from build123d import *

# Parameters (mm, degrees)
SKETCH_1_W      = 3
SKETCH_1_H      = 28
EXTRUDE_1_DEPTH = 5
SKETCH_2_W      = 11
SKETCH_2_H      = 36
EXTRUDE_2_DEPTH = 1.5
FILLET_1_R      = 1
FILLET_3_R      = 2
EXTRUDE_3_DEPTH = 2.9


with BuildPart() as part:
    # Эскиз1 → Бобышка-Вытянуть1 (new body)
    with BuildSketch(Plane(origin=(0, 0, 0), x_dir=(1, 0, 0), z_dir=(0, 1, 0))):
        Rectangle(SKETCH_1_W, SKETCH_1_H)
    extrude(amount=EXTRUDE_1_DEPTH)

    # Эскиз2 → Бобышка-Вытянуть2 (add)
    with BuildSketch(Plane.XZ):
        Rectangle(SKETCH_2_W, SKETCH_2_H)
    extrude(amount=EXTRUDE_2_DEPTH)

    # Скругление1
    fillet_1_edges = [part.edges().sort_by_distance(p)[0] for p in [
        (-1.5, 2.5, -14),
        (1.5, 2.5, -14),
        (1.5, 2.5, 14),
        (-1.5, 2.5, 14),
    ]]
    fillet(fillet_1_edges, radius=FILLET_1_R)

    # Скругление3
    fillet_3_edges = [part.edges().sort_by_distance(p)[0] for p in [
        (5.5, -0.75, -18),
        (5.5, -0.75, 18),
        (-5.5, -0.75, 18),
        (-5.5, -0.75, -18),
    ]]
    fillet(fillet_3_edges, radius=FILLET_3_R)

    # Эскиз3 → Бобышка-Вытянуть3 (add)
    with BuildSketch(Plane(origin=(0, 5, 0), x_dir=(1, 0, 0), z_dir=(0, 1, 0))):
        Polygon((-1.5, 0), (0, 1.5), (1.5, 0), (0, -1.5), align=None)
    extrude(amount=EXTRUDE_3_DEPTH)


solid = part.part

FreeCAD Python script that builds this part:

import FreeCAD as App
import Part
import Sketcher

V = App.Vector
Q = App.Units.Quantity


def edges_at(feature, points):
    """Names of the edges that pass closest to the given points."""
    edges = feature.Shape.Edges
    near = lambda p: min(range(len(edges)), key=lambda i: edges[i].distToShape(Part.Vertex(*p))[0])
    return sorted({f"Edge{near(p) + 1}" for p in points})

doc = App.newDocument("Part")
body = doc.addObject("PartDesign::Body", "Body")

# Sketch on XZ plane
sketch1 = body.newObject("Sketcher::SketchObject", "Sketch")
sketch1.AttachmentSupport = (doc.getObject("XZ_Plane"), [""])
sketch1.MapMode = "FlatFace"
sketch1.addGeometry(Part.LineSegment(V(-1.5, -14, 0), V(-1.5, 14, 0)), False)
sketch1.addGeometry(Part.LineSegment(V(-1.5, 14, 0), V(1.5, 14, 0)), False)
sketch1.addGeometry(Part.LineSegment(V(1.5, 14, 0), V(1.5, -14, 0)), False)
sketch1.addGeometry(Part.LineSegment(V(1.5, -14, 0), V(-1.5, -14, 0)), False)
sketch1.addConstraint(Sketcher.Constraint("Coincident", 0, 2, 1, 1))
sketch1.addConstraint(Sketcher.Constraint("Coincident", 1, 2, 2, 1))
sketch1.addConstraint(Sketcher.Constraint("Coincident", 2, 2, 3, 1))
sketch1.addConstraint(Sketcher.Constraint("Coincident", 3, 2, 0, 1))
sketch1.addConstraint(Sketcher.Constraint("Vertical", 0))
sketch1.addConstraint(Sketcher.Constraint("Horizontal", 1))
sketch1.addConstraint(Sketcher.Constraint("Vertical", 2))
sketch1.addConstraint(Sketcher.Constraint("Horizontal", 3))
sketch1.addConstraint(Sketcher.Constraint("Symmetric", 0, 2, 2, 2, -1, 1))
sketch1.addConstraint(Sketcher.Constraint("DistanceX", 1, 1, 1, 2, Q("3 mm")))
sketch1.addConstraint(Sketcher.Constraint("DistanceY", 0, 1, 0, 2, Q("28 mm")))
pad1 = body.newObject("PartDesign::Pad", "Pad")
pad1.Profile = sketch1
pad1.Length = 5
pad1.Reversed = True

# Sketch on XZ plane
sketch2 = body.newObject("Sketcher::SketchObject", "Sketch001")
sketch2.AttachmentSupport = (doc.getObject("XZ_Plane"), [""])
sketch2.MapMode = "FlatFace"
sketch2.addGeometry(Part.LineSegment(V(-6, 18, 0), V(-6, -18, 0)), False)
sketch2.addGeometry(Part.LineSegment(V(-6, -18, 0), V(6, -18, 0)), False)
sketch2.addGeometry(Part.LineSegment(V(6, -18, 0), V(6, 18, 0)), False)
sketch2.addGeometry(Part.LineSegment(V(6, 18, 0), V(-6, 18, 0)), False)
sketch2.addConstraint(Sketcher.Constraint("Coincident", 0, 2, 1, 1))
sketch2.addConstraint(Sketcher.Constraint("Coincident", 1, 2, 2, 1))
sketch2.addConstraint(Sketcher.Constraint("Coincident", 2, 2, 3, 1))
sketch2.addConstraint(Sketcher.Constraint("Coincident", 3, 2, 0, 1))
sketch2.addConstraint(Sketcher.Constraint("Vertical", 0))
sketch2.addConstraint(Sketcher.Constraint("Horizontal", 1))
sketch2.addConstraint(Sketcher.Constraint("Vertical", 2))
sketch2.addConstraint(Sketcher.Constraint("Horizontal", 3))
sketch2.addConstraint(Sketcher.Constraint("Symmetric", 0, 2, 2, 2, -1, 1))
sketch2.addConstraint(Sketcher.Constraint("DistanceX", 1, 1, 1, 2, Q("11 mm")))
sketch2.addConstraint(Sketcher.Constraint("DistanceY", 0, 2, 0, 1, Q("36 mm")))
pad2 = body.newObject("PartDesign::Pad", "Pad001")
pad2.Profile = sketch2
pad2.Length = 1.5
doc.recompute()

fillet = body.newObject("PartDesign::Fillet", "Fillet")
fillet.Base = (pad2, edges_at(pad2, [
    (-1.5, 2.5, -14),
    (1.5, 2.5, -14),
    (1.5, 2.5, 14),
    (-1.5, 2.5, 14),
]))
fillet.Radius = 1
doc.recompute()

fillet2 = body.newObject("PartDesign::Fillet", "Fillet001")
fillet2.Base = (fillet, edges_at(fillet, [
    (5.5, -0.75, -18),
    (5.5, -0.75, 18),
    (-5.5, -0.75, 18),
    (-5.5, -0.75, -18),
]))
fillet2.Radius = 2

# Sketch on XZ plane
sketch3 = body.newObject("Sketcher::SketchObject", "Sketch002")
sketch3.AttachmentSupport = (doc.getObject("XZ_Plane"), [""])
sketch3.MapMode = "FlatFace"
sketch3.AttachmentOffset = App.Placement(V(0, 0, -5), App.Rotation())
sketch3.addGeometry(Part.LineSegment(V(0, -1.5, 0), V(-1.5, 0, 0)), False)
sketch3.addGeometry(Part.LineSegment(V(-1.5, 0, 0), V(0, 1.5, 0)), False)
sketch3.addGeometry(Part.LineSegment(V(0, 1.5, 0), V(1.5, 0, 0)), False)
sketch3.addGeometry(Part.LineSegment(V(1.5, 0, 0), V(0, -1.5, 0)), False)
sketch3.addConstraint(Sketcher.Constraint("Coincident", 0, 2, 1, 1))
sketch3.addConstraint(Sketcher.Constraint("Coincident", 1, 2, 2, 1))
sketch3.addConstraint(Sketcher.Constraint("Coincident", 2, 2, 3, 1))
sketch3.addConstraint(Sketcher.Constraint("Coincident", 3, 2, 0, 1))
sketch3.addConstraint(Sketcher.Constraint("Symmetric", 0, 2, 2, 2, -1, 1))
sketch3.addConstraint(Sketcher.Constraint("Symmetric", 1, 2, 3, 2, -1, 1))
sketch3.addConstraint(Sketcher.Constraint("PointOnObject", 0, 2, -1))
sketch3.addConstraint(Sketcher.Constraint("PointOnObject", 1, 2, -2))
sketch3.addConstraint(Sketcher.Constraint("Perpendicular", 0, 1))
sketch3.addConstraint(Sketcher.Constraint("DistanceX", 0, 2, 2, 2, Q("3 mm")))
pad3 = body.newObject("PartDesign::Pad", "Pad002")
pad3.Profile = sketch3
pad3.Length = 2.9
pad3.Reversed = True

doc.recompute()
